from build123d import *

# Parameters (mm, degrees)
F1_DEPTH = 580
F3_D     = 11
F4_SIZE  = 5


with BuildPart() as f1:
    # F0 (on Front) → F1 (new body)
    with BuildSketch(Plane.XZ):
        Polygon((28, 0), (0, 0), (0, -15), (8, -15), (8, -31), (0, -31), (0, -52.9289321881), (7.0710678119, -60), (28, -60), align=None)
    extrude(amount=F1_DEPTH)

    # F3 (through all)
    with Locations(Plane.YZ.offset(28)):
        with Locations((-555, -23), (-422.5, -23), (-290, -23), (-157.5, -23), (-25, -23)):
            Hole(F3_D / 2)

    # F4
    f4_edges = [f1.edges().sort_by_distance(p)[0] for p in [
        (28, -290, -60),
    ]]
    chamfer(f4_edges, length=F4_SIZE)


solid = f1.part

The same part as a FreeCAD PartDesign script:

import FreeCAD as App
import Part
import Sketcher

V = App.Vector
Q = App.Units.Quantity


def edges_at(feature, points):
    """Names of the edges that pass closest to the given points."""
    edges = feature.Shape.Edges
    near = lambda p: min(range(len(edges)), key=lambda i: edges[i].distToShape(Part.Vertex(*p))[0])
    return sorted({f"Edge{near(p) + 1}" for p in points})


def add_polygon(sketch, points):
    """Adds a closed chain of lines whose ends are joined by coincident constraints."""
    first, n = sketch.GeometryCount, len(points)
    for a, b in zip(points, points[1:] + points[:1]):
        sketch.addGeometry(Part.LineSegment(App.Vector(*a, 0), App.Vector(*b, 0)), False)
    for i in range(n):
        sketch.addConstraint(Sketcher.Constraint("Coincident", first + i, 2, first + (i + 1) % n, 1))

doc = App.newDocument("Part")
body = doc.addObject("PartDesign::Body", "Body")

# Sketch on XZ plane
sketch1 = body.newObject("Sketcher::SketchObject", "Sketch")
sketch1.AttachmentSupport = (doc.getObject("XZ_Plane"), [""])
sketch1.MapMode = "FlatFace"
add_polygon(sketch1, [(28, 0), (0, 0), (0, -15), (8, -15), (8, -31), (0, -31), (0, -52.928932), (7.071068, -60), (28, -60)])  # lines 0-8
sketch1.addConstraint([
    Sketcher.Constraint("Horizontal", 0),
    Sketcher.Constraint("Vertical", 1),
    Sketcher.Constraint("Horizontal", 2),
    Sketcher.Constraint("Vertical", 3),
    Sketcher.Constraint("Horizontal", 4),
    Sketcher.Constraint("Vertical", 5),
    Sketcher.Constraint("Horizontal", 7),
    Sketcher.Constraint("Vertical", 8),
    Sketcher.Constraint("Coincident", 0, 2, -1, 1),
    Sketcher.Constraint("PointOnObject", 4, 2, -2),
    Sketcher.Constraint("DistanceX", 0, 2, 0, 1, 28.0),
    Sketcher.Constraint("DistanceX", 2, 1, 2, 2, 8.0),
    Sketcher.Constraint("DistanceY", 1, 2, 1, 1, 15.0),
    Sketcher.Constraint("DistanceY", 3, 2, 3, 1, 16.0),
    Sketcher.Constraint("DistanceY", 8, 1, 8, 2, 60.0),
    Sketcher.Constraint("Angle", 6, Q("-45 deg")),
    Sketcher.Constraint("Distance", 6, 10.0),
])
pad1 = body.newObject("PartDesign::Pad", "Pad")
pad1.Profile = sketch1
pad1.Length = 580

# Sketch on YZ plane
sketch2 = body.newObject("Sketcher::SketchObject", "Sketch001")
sketch2.AttachmentSupport = (doc.getObject("YZ_Plane"), [""])
sketch2.MapMode = "FlatFace"
sketch2.AttachmentOffset = App.Placement(V(0, 0, 28), App.Rotation())
sketch2.addGeometry([
    Part.Circle(V(-555, -23, 0), V(0, 0, 1), 5.5),  # 0
    Part.Circle(V(-422.5, -23, 0), V(0, 0, 1), 5.5),  # 1
    Part.Circle(V(-290, -23, 0), V(0, 0, 1), 5.5),  # 2
    Part.Circle(V(-157.5, -23, 0), V(0, 0, 1), 5.5),  # 3
    Part.Circle(V(-25, -23, 0), V(0, 0, 1), 5.5),  # 4
], False)
sketch2.addConstraint([
    Sketcher.Constraint("Equal", 0, 1),
    Sketcher.Constraint("Equal", 1, 2),
    Sketcher.Constraint("Equal", 2, 3),
    Sketcher.Constraint("Equal", 3, 4),
    Sketcher.Constraint("Horizontal", 0, 3, 1, 3),
    Sketcher.Constraint("Horizontal", 1, 3, 2, 3),
    Sketcher.Constraint("Horizontal", 2, 3, 3, 3),
    Sketcher.Constraint("Horizontal", 3, 3, 4, 3),
    Sketcher.Constraint("Diameter", 0, 11.0),
    Sketcher.Constraint("DistanceX", 0, 3, -1, 1, 555.0),
    Sketcher.Constraint("DistanceY", 0, 3, -1, 1, 23.0),
    Sketcher.Constraint("DistanceX", 2, 3, -1, 1, 290.0),
    Sketcher.Constraint("DistanceX", 4, 3, -1, 1, 25.0),
    Sketcher.Constraint("DistanceX", 1, 3, 3, 3, 265.0),
    Sketcher.Constraint("DistanceX", 1, 3, -1, 1, 422.5),
])
doc.recompute()
hole = body.newObject("PartDesign::Hole", "Hole")
hole.Profile = sketch2
hole.ThreadType = "None"
hole.Diameter = 11
hole.DepthType = "ThroughAll"
doc.recompute()

chamfer = body.newObject("PartDesign::Chamfer", "Chamfer")
chamfer.Base = (hole, edges_at(hole, [(28, -290, -60)]))
chamfer.Size = 5

doc.recompute()
